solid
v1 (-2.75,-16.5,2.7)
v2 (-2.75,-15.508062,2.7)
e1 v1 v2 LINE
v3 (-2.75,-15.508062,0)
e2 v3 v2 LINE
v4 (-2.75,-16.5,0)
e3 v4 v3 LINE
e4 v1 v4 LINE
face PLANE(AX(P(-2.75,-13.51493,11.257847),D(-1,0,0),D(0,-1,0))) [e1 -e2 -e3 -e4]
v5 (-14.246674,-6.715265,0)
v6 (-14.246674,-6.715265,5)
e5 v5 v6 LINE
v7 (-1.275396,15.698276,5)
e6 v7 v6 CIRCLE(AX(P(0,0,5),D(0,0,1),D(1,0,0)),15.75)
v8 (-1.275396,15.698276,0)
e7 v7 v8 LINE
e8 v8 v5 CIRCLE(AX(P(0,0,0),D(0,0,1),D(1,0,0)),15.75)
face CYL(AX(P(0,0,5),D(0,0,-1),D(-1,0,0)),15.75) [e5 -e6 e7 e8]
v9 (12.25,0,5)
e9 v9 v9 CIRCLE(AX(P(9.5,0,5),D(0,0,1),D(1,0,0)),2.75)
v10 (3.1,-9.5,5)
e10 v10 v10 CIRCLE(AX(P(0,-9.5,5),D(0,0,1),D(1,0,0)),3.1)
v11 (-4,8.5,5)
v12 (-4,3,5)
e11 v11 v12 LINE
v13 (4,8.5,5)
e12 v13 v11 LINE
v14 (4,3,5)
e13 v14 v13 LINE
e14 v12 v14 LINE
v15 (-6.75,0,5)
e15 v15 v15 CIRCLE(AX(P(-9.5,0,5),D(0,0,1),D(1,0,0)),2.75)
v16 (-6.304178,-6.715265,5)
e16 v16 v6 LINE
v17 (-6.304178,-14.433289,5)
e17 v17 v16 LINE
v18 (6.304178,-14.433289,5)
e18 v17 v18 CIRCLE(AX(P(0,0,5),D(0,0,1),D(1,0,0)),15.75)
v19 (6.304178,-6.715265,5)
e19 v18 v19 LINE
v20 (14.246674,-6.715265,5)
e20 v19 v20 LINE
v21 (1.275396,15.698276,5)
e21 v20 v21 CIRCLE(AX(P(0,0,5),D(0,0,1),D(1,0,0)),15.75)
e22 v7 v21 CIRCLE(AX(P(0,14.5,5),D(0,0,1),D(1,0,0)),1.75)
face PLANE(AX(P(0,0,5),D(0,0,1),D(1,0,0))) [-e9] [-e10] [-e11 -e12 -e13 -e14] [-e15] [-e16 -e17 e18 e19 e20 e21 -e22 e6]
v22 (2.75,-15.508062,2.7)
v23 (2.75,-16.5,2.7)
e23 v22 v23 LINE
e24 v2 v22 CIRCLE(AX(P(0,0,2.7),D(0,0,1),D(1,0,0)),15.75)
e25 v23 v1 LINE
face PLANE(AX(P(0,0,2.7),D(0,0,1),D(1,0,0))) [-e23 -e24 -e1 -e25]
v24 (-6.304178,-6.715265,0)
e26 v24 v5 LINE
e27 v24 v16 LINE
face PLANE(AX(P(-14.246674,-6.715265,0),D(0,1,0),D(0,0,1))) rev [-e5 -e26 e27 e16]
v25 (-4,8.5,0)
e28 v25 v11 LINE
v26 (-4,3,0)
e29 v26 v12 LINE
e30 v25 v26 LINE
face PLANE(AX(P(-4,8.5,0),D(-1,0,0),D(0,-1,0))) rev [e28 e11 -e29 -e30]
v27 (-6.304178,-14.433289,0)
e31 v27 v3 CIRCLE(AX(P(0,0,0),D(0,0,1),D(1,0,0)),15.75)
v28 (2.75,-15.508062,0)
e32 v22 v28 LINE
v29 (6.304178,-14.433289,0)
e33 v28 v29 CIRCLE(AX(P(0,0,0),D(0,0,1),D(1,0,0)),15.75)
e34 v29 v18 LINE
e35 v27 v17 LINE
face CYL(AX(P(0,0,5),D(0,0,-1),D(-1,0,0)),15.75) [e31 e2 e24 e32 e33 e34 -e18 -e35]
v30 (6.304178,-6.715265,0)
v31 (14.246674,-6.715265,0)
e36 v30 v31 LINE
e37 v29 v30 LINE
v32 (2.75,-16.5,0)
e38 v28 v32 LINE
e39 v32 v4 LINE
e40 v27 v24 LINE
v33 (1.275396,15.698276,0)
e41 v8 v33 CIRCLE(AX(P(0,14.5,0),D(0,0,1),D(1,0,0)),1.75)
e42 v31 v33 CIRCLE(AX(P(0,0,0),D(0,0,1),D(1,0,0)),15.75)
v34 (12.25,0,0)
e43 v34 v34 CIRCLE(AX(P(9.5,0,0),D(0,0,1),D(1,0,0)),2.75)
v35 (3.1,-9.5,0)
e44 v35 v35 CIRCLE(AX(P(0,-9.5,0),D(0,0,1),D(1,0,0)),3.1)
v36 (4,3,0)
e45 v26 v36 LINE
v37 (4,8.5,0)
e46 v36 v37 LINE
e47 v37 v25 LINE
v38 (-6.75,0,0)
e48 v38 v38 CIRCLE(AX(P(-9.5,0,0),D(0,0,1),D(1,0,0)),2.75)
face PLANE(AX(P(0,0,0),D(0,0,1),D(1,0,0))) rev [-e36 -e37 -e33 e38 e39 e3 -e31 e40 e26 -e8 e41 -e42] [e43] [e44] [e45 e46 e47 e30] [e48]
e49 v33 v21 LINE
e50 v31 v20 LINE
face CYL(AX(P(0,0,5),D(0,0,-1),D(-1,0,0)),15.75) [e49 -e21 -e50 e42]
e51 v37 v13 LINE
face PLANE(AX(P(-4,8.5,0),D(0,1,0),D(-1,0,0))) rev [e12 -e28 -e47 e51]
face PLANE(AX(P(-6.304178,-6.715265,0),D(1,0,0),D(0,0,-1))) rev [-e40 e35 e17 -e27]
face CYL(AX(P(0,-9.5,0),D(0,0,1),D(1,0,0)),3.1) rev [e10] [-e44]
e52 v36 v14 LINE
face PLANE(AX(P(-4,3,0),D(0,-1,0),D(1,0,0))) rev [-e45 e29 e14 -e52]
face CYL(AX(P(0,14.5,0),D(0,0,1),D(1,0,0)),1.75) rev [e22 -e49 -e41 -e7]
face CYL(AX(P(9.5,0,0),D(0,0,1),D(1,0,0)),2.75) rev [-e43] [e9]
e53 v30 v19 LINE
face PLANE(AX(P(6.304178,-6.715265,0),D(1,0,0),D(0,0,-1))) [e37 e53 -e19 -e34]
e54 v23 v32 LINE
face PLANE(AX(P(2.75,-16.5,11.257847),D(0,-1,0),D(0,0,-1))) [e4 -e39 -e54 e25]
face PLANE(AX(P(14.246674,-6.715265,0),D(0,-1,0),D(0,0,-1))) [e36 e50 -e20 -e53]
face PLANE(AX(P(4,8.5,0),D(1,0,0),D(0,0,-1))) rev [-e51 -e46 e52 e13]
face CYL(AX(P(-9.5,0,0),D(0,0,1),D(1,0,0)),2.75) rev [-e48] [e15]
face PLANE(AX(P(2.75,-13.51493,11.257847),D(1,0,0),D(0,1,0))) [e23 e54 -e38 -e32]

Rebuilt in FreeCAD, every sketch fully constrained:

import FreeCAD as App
import Part
import Sketcher
from FreeCAD import Vector


def add_polygon(sketch, points):
    """Adds a closed chain of lines whose ends are joined by coincident constraints."""
    first, n = sketch.GeometryCount, len(points)
    for a, b in zip(points, points[1:] + points[:1]):
        sketch.addGeometry(Part.LineSegment(App.Vector(*a, 0), App.Vector(*b, 0)), False)
    for i in range(n):
        sketch.addConstraint(Sketcher.Constraint("Coincident", first + i, 2, first + (i + 1) % n, 1))

doc = App.newDocument("Part")
params = doc.addObject("Spreadsheet::Sheet", "Params")
for row, (alias, value) in enumerate([
    ("sketch1_diameter", "31.5 mm"),
    ("pad1_length", "5 mm"),
    ("sketch2_width", "5.5 mm"),
    ("pad2_length", "2.7 mm"),
    ("sketch3_diameter", "3.5 mm"),
    ("sketch3_diameter2", "5.5 mm"),
    ("sketch3_diameter3", "6.2 mm"),
    ("sketch5_width", "8 mm"),
    ("sketch5_height", "5.5 mm"),
], start=1):
    params.set(f"A{row}", alias)
    params.set(f"B{row}", "=" + value)
    params.setAlias(f"B{row}", alias)

body = doc.addObject("PartDesign::Body", "Body")

# Sketch on XY plane
sketch1 = doc.addObject("Sketcher::SketchObject", "Sketch")
body.addObject(sketch1)
sketch1.AttachmentSupport = (doc.XY_Plane, [""])
sketch1.MapMode = "FlatFace"
sketch1.addGeometry(Part.Circle(Vector(0, 0, 0), Vector(0, 0, 1), 16), False)
sketch1.addConstraint(Sketcher.Constraint("Coincident", 0, 3, -1, 1))
sketch1.addConstraint(Sketcher.Constraint("Diameter", 0, 31.5))
sketch1.setExpression("Constraints[1]", "Params.sketch1_diameter")
pad1 = doc.addObject("PartDesign::Pad", "Pad")
body.addObject(pad1)
pad1.Profile = sketch1
pad1.setExpression("Length", "Params.pad1_length")

# Sketch on XY plane
sketch2 = doc.addObject("Sketcher::SketchObject", "Sketch001")
body.addObject(sketch2)
sketch2.AttachmentSupport = (doc.XY_Plane, [""])
sketch2.MapMode = "FlatFace"
add_polygon(sketch2, [(2.8, -13.5), (2.8, -16.5), (-2.8, -16.5), (-2.8, -13.5)])  # lines 0-3
sketch2.addConstraint(Sketcher.Constraint("Vertical", 0))
sketch2.addConstraint(Sketcher.Constraint("Horizontal", 1))
sketch2.addConstraint(Sketcher.Constraint("Vertical", 2))
sketch2.addConstraint(Sketcher.Constraint("Horizontal", 3))
sketch2.addConstraint(Sketcher.Constraint("DistanceX", 1, 2, 1, 1, 5.5))
sketch2.addConstraint(Sketcher.Constraint("DistanceY", 0, 2, -1, 1, 16.5))
sketch2.addConstraint(Sketcher.Constraint("DistanceX", -1, 1, 0, 2, 2.75))
sketch2.addConstraint(Sketcher.Constraint("DistanceY", 0, 2, 0, 1, 2.98507))
sketch2.setExpression("Constraints[8]", "Params.sketch2_width")
pad2 = doc.addObject("PartDesign::Pad", "Pad001")
body.addObject(pad2)
pad2.Profile = sketch2
pad2.setExpression("Length", "Params.pad2_length")

# Sketch on XY plane
sketch3 = doc.addObject("Sketcher::SketchObject", "Sketch002")
body.addObject(sketch3)
sketch3.AttachmentSupport = (doc.XY_Plane, [""])
sketch3.MapMode = "FlatFace"
sketch3.AttachmentOffset = App.Placement(Vector(0, 0, 5), App.Rotation())
sketch3.addGeometry(Part.Circle(Vector(0, 14.5, 0), Vector(0, 0, 1), 1.8), False)
sketch3.addGeometry(Part.Circle(Vector(9.5, 0, 0), Vector(0, 0, 1), 2.8), False)
sketch3.addGeometry(Part.Circle(Vector(-9.5, 0, 0), Vector(0, 0, 1), 2.8), False)
sketch3.addGeometry(Part.Circle(Vector(0, -9.5, 0), Vector(0, 0, 1), 3.1), False)
sketch3.addConstraint(Sketcher.Constraint("Equal", 1, 2))
sketch3.addConstraint(Sketcher.Constraint("Symmetric", 1, 3, 2, 3, -1, 1))
sketch3.addConstraint(Sketcher.Constraint("PointOnObject", 0, 3, -2))
sketch3.addConstraint(Sketcher.Constraint("PointOnObject", 1, 3, -1))
sketch3.addConstraint(Sketcher.Constraint("PointOnObject", 3, 3, -2))
sketch3.addConstraint(Sketcher.Constraint("Diameter", 0, 3.5))
sketch3.addConstraint(Sketcher.Constraint("Diameter", 1, 5.5))
sketch3.addConstraint(Sketcher.Constraint("Diameter", 3, 6.2))
sketch3.addConstraint(Sketcher.Constraint("DistanceX", 2, 3, 1, 3, 19.0))
sketch3.addConstraint(Sketcher.Constraint("DistanceY", 3, 3, 0, 3, 24.0))
sketch3.addConstraint(Sketcher.Constraint("DistanceY", -1, 1, 0, 3, 14.5))
sketch3.setExpression("Constraints[5]", "Params.sketch3_diameter")
sketch3.setExpression("Constraints[6]", "Params.sketch3_diameter2")
sketch3.setExpression("Constraints[7]", "Params.sketch3_diameter3")
pocket1 = doc.addObject("PartDesign::Pocket", "Pocket")
body.addObject(pocket1)
pocket1.Profile = sketch3
pocket1.Type = "ThroughAll"

# Sketch on XY plane
sketch4 = doc.addObject("Sketcher::SketchObject", "Sketch003")
body.addObject(sketch4)
sketch4.AttachmentSupport = (doc.XY_Plane, [""])
sketch4.MapMode = "FlatFace"
sketch4.AttachmentOffset = App.Placement(Vector(0, 0, 5), App.Rotation())
add_polygon(sketch4, [(-14, -7), (-14, -14), (-6, -14), (-6, -7)])  # lines 0-3
sketch4.addConstraint(Sketcher.Constraint("Vertical", 0))
sketch4.addConstraint(Sketcher.Constraint("Horizontal", 1))
sketch4.addConstraint(Sketcher.Constraint("Vertical", 2))
sketch4.addConstraint(Sketcher.Constraint("Horizontal", 3))
sketch4.addConstraint(Sketcher.Constraint("DistanceX", 1, 1, 1, 2, 7.942496))
sketch4.addConstraint(Sketcher.Constraint("DistanceY", 0, 2, 0, 1, 7.718025))
sketch4.addConstraint(Sketcher.Constraint("DistanceY", 0, 2, -1, 1, 14.433289))
sketch4.addConstraint(Sketcher.Constraint("DistanceX", 1, 2, -1, 1, 6.304178))
pocket2 = doc.addObject("PartDesign::Pocket", "Pocket001")
body.addObject(pocket2)
pocket2.Profile = sketch4
pocket2.Type = "ThroughAll"
doc.recompute()

mirrored = doc.addObject("PartDesign::Mirrored", "Mirrored")
body.addObject(mirrored)
mirrored.Originals = [pocket2]
mirrored.MirrorPlane = (doc.YZ_Plane, [""])
body.Tip = mirrored

# Sketch on XY plane
sketch5 = doc.addObject("Sketcher::SketchObject", "Sketch004")
body.addObject(sketch5)
sketch5.AttachmentSupport = (doc.XY_Plane, [""])
sketch5.MapMode = "FlatFace"
sketch5.AttachmentOffset = App.Placement(Vector(0, 0, 5), App.Rotation())
add_polygon(sketch5, [(-4, 8), (-4, 3), (4, 3), (4, 8)])  # lines 0-3
sketch5.addConstraint(Sketcher.Constraint("Vertical", 0))
sketch5.addConstraint(Sketcher.Constraint("Horizontal", 1))
sketch5.addConstraint(Sketcher.Constraint("Vertical", 2))
sketch5.addConstraint(Sketcher.Constraint("Horizontal", 3))
sketch5.addConstraint(Sketcher.Constraint("DistanceX", 1, 1, 1, 2, 8.0))
sketch5.addConstraint(Sketcher.Constraint("DistanceY", 0, 2, 0, 1, 5.5))
sketch5.addConstraint(Sketcher.Constraint("DistanceX", 0, 2, -1, 1, 4.0))
sketch5.addConstraint(Sketcher.Constraint("DistanceY", -1, 1, 0, 2, 3.0))
sketch5.setExpression("Constraints[8]", "Params.sketch5_width")
sketch5.setExpression("Constraints[9]", "Params.sketch5_height")
pocket3 = doc.addObject("PartDesign::Pocket", "Pocket002")
body.addObject(pocket3)
pocket3.Profile = sketch5
pocket3.Type = "ThroughAll"

doc.recompute()
